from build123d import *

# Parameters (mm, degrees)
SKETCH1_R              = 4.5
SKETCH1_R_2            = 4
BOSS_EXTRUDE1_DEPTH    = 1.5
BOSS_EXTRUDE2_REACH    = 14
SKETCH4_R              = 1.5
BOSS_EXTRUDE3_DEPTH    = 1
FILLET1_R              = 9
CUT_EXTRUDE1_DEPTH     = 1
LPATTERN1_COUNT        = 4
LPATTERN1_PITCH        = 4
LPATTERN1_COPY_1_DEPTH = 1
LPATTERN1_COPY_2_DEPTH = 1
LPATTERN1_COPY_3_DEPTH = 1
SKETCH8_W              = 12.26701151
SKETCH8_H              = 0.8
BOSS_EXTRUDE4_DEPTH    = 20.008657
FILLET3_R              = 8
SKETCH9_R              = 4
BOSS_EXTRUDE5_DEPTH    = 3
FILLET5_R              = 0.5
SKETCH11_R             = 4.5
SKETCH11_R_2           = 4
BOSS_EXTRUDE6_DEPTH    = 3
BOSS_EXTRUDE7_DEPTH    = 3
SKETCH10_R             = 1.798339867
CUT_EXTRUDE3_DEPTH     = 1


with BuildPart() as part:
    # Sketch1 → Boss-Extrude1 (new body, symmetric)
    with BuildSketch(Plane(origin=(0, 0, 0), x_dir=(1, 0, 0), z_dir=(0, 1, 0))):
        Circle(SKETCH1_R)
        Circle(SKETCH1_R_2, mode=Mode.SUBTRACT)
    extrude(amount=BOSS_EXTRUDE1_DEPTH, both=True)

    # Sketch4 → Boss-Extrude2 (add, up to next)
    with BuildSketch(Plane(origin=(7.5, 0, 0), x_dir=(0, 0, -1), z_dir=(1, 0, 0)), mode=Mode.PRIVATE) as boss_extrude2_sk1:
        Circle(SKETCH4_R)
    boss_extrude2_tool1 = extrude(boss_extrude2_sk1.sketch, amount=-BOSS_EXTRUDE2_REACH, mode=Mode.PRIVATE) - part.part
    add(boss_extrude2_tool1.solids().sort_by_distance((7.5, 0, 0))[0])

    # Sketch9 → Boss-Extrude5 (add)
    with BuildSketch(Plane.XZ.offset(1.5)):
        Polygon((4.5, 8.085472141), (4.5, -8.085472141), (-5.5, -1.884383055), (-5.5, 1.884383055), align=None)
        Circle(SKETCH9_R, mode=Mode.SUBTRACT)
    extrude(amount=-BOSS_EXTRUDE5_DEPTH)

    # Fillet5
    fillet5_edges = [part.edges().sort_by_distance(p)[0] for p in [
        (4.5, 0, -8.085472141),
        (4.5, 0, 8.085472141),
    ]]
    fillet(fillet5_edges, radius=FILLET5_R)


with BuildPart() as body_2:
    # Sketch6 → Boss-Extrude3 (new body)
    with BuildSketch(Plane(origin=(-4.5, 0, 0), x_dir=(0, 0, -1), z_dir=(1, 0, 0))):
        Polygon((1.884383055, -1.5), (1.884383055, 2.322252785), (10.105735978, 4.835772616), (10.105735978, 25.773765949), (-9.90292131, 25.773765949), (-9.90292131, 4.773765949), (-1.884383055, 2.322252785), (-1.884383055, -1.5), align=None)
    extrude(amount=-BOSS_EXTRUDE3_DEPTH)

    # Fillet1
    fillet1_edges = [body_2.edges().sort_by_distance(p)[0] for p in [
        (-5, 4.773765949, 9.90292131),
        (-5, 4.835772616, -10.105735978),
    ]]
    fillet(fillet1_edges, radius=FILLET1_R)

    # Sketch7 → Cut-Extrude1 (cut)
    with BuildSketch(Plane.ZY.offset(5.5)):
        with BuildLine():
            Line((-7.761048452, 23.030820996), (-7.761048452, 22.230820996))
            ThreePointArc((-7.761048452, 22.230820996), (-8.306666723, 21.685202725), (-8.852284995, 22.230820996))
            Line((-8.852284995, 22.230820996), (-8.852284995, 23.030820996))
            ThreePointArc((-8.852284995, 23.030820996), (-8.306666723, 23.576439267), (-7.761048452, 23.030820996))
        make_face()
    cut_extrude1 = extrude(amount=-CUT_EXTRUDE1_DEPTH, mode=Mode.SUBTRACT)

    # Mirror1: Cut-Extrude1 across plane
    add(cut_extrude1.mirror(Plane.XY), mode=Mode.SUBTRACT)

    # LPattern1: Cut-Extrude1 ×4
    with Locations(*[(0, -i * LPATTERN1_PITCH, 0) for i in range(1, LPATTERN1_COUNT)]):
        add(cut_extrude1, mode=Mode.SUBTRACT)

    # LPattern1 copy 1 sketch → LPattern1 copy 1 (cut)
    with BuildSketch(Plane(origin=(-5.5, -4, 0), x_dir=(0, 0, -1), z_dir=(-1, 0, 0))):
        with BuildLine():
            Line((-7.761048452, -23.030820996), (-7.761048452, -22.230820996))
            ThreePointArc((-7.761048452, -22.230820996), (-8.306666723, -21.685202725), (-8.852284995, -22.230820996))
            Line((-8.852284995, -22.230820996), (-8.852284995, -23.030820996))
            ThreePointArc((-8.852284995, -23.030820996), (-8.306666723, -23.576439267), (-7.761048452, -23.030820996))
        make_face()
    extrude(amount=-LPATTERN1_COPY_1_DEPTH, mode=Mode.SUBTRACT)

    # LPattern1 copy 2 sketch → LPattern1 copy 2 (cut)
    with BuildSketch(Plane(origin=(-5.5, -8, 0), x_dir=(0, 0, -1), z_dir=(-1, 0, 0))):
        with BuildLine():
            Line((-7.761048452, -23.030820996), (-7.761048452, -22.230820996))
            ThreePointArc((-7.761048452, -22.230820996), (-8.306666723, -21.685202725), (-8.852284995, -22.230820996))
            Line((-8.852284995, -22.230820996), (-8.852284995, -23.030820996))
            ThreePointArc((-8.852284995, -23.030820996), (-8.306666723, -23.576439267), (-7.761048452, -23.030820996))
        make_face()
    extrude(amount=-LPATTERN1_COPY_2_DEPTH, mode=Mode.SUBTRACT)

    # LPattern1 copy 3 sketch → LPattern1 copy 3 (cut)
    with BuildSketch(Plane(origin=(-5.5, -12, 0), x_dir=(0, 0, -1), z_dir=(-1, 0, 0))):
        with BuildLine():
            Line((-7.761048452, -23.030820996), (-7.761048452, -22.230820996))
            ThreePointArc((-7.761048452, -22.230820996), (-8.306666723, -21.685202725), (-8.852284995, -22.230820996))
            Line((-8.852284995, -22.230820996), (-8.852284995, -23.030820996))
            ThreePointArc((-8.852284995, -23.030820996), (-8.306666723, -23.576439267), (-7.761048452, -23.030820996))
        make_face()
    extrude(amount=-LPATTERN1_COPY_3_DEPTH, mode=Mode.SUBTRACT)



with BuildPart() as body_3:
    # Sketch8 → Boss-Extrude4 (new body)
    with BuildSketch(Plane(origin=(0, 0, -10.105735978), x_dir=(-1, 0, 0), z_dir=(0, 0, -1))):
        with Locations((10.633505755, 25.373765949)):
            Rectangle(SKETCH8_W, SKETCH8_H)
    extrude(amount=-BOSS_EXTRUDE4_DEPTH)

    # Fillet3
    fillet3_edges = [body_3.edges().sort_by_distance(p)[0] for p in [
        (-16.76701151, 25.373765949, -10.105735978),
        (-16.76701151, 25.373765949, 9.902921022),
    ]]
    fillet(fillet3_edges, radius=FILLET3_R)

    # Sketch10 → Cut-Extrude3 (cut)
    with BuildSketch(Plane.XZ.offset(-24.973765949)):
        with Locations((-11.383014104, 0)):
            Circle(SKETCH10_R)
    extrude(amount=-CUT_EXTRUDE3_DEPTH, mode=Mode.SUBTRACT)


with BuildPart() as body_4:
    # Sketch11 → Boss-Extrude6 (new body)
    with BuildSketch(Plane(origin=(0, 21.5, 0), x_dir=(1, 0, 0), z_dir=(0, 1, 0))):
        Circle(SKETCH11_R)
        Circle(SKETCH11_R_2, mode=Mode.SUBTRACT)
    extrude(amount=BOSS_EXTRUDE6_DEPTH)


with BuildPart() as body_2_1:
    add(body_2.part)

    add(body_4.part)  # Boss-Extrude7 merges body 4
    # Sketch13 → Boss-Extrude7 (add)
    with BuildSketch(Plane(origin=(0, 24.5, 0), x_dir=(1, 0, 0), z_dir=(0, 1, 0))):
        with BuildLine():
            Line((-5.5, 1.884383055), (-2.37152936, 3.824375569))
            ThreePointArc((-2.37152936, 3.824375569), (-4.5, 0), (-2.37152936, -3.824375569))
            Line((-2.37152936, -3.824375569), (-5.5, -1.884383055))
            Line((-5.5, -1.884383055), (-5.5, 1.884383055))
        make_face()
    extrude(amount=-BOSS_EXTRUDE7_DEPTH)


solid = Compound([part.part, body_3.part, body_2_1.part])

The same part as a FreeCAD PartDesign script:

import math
import FreeCAD as App
import Part
import Sketcher
from FreeCAD import Vector
Q = App.Units.Quantity


def edges_at(feature, points):
    """Names of the edges that pass closest to the given points."""
    edges = feature.Shape.Edges
    near = lambda p: min(range(len(edges)), key=lambda i: edges[i].distToShape(Part.Vertex(*p))[0])
    return sorted({f"Edge{near(p) + 1}" for p in points})

doc = App.newDocument("Part")
body = doc.addObject("PartDesign::Body", "Body")

sketch1 = body.newObject("Sketcher::SketchObject", "Sketch")
sketch1.AttachmentSupport = (doc.getObject("XZ_Plane"), [""])
sketch1.MapMode = "FlatFace"
sketch1.addGeometry([
    Part.Circle(Vector(0, 0, 0), Vector(0, 0, 1), 4.5),
    Part.Circle(Vector(0, 0, 0), Vector(0, 0, 1), 4),
], False)
sketch1.addConstraint([
    Sketcher.Constraint("Coincident", 0, 3, -1, 1),
    Sketcher.Constraint("Coincident", 1, 3, -1, 1),
    Sketcher.Constraint("Diameter", 0, Q("9 mm")),
    Sketcher.Constraint("Diameter", 1, Q("8 mm")),
])
pad1 = body.newObject("PartDesign::Pad", "Pad")
pad1.Profile = sketch1
pad1.Length = 3
pad1.Midplane = True

sketch2 = body.newObject("Sketcher::SketchObject", "Sketch001")
sketch2.AttachmentSupport = (doc.getObject("YZ_Plane"), [""])
sketch2.MapMode = "FlatFace"
sketch2.AttachmentOffset = App.Placement(Vector(0, 0, 7.5), App.Rotation())
sketch2.addGeometry(Part.Circle(Vector(0, 0, 0), Vector(0, 0, 1), 1.5), False)
sketch2.addConstraint([
    Sketcher.Constraint("Coincident", 0, 3, -1, 1),
    Sketcher.Constraint("Diameter", 0, Q("3 mm")),
])
pad2 = body.newObject("PartDesign::Pad", "Pad001")
pad2.Profile = sketch2
pad2.Type = "UpToFirst"
pad2.Reversed = True

sketch3 = body.newObject("Sketcher::SketchObject", "Sketch002")
sketch3.AttachmentSupport = (doc.getObject("XZ_Plane"), [""])
sketch3.MapMode = "FlatFace"
sketch3.AttachmentOffset = App.Placement(Vector(0, 0, 1.5), App.Rotation())
sketch3.addGeometry([
    Part.LineSegment(Vector(4.5, -8.1, 0), Vector(4.5, 8.1, 0)),
    Part.LineSegment(Vector(4.5, 8.1, 0), Vector(-5.5, 1.9, 0)),
    Part.LineSegment(Vector(-5.5, 1.9, 0), Vector(-5.5, -1.9, 0)),
    Part.LineSegment(Vector(-5.5, -1.9, 0), Vector(4.5, -8.1, 0)),
    Part.Circle(Vector(0, 0, 0), Vector(0, 0, 1), 4),
], False)
sketch3.addConstraint([
    Sketcher.Constraint("Coincident", 0, 2, 1, 1),
    Sketcher.Constraint("Coincident", 1, 2, 2, 1),
    Sketcher.Constraint("Coincident", 2, 2, 3, 1),
    Sketcher.Constraint("Coincident", 3, 2, 0, 1),
    Sketcher.Constraint("Vertical", 0),
    Sketcher.Constraint("Vertical", 2),
    Sketcher.Constraint("Coincident", 4, 3, -1, 1),
    Sketcher.Constraint("Equal", 1, 3),
    Sketcher.Constraint("Diameter", 4, Q("8 mm")),
    Sketcher.Constraint("DistanceX", 1, 2, 0, 2, Q("10 mm")),
    Sketcher.Constraint("DistanceX", -1, 1, 0, 2, Q("4.5 mm")),
    Sketcher.Constraint("DistanceY", 0, 1, 0, 2, Q("16.170944 mm")),
    Sketcher.Constraint("DistanceY", 2, 2, 2, 1, Q("3.768766 mm")),
    Sketcher.Constraint("DistanceY", -1, 1, 0, 2, Q("8.085472 mm")),
])
pad3 = body.newObject("PartDesign::Pad", "Pad002")
pad3.Profile = sketch3
pad3.Length = 3
pad3.Reversed = True
doc.recompute()

fillet = body.newObject("PartDesign::Fillet", "Fillet")
fillet.Base = (pad3, edges_at(pad3, [(4.5, 0, -8.085), (4.5, 0, 8.085)]))
fillet.Radius = 0.5
body2 = doc.addObject("PartDesign::Body", "Body001")

sketch4 = body2.newObject("Sketcher::SketchObject", "Sketch003")
sketch4.AttachmentSupport = (doc.getObject("YZ_Plane001"), [""])
sketch4.MapMode = "FlatFace"
sketch4.AttachmentOffset = App.Placement(Vector(0, 0, -4.5), App.Rotation())
sketch4.addGeometry([
    Part.LineSegment(Vector(-1.5, -1.9, 0), Vector(2.3, -1.9, 0)),
    Part.LineSegment(Vector(2.3, -1.9, 0), Vector(4.8, -10.1, 0)),
    Part.LineSegment(Vector(4.8, -10.1, 0), Vector(25.8, -10.1, 0)),
    Part.LineSegment(Vector(25.8, -10.1, 0), Vector(25.8, 9.9, 0)),
    Part.LineSegment(Vector(25.8, 9.9, 0), Vector(4.8, 9.9, 0)),
    Part.LineSegment(Vector(4.8, 9.9, 0), Vector(2.3, 1.9, 0)),
    Part.LineSegment(Vector(2.3, 1.9, 0), Vector(-1.5, 1.9, 0)),
    Part.LineSegment(Vector(-1.5, 1.9, 0), Vector(-1.5, -1.9, 0)),
], False)
sketch4.addConstraint([
    Sketcher.Constraint("Coincident", 0, 2, 1, 1),
    Sketcher.Constraint("Coincident", 1, 2, 2, 1),
    Sketcher.Constraint("Coincident", 2, 2, 3, 1),
    Sketcher.Constraint("Coincident", 3, 2, 4, 1),
    Sketcher.Constraint("Coincident", 4, 2, 5, 1),
    Sketcher.Constraint("Coincident", 5, 2, 6, 1),
    Sketcher.Constraint("Coincident", 6, 2, 7, 1),
    Sketcher.Constraint("Coincident", 7, 2, 0, 1),
    Sketcher.Constraint("Horizontal", 0),
    Sketcher.Constraint("Horizontal", 2),
    Sketcher.Constraint("Vertical", 3),
    Sketcher.Constraint("Horizontal", 4),
    Sketcher.Constraint("Horizontal", 6),
    Sketcher.Constraint("Vertical", 7),
    Sketcher.Constraint("Symmetric", 0, 2, 5, 2, -1),
    Sketcher.Constraint("DistanceX", 4, 2, 4, 1, Q("21 mm")),
    Sketcher.Constraint("Angle", 1, Q("-73 deg")),
    Sketcher.Constraint("Angle", 5, Q("-107 deg")),
    Sketcher.Constraint("DistanceX", 6, 2, -1, 1, Q("1.5 mm")),
    Sketcher.Constraint("Distance", 1, Q("8.597001 mm")),
    Sketcher.Constraint("Distance", 5, Q("8.384919 mm")),
    Sketcher.Constraint("DistanceX", 0, 1, 0, 2, Q("3.822253 mm")),
    Sketcher.Constraint("DistanceY", 3, 1, 3, 2, Q("20.008657 mm")),
])
pad4 = body2.newObject("PartDesign::Pad", "Pad003")
pad4.Profile = sketch4
pad4.Length = 1
pad4.Reversed = True
doc.recompute()

fillet2 = body2.newObject("PartDesign::Fillet", "Fillet001")
fillet2.Base = (pad4, edges_at(pad4, [(-5, 4.774, 9.903), (-5, 4.836, -10.106)]))
fillet2.Radius = 9

sketch5 = body2.newObject("Sketcher::SketchObject", "Sketch004")
sketch5.AttachmentSupport = (doc.getObject("YZ_Plane001"), [""])
sketch5.MapMode = "FlatFace"
sketch5.AttachmentOffset = App.Placement(Vector(0, 0, -5.5), App.Rotation())
sketch5.addGeometry([
    Part.LineSegment(Vector(22.2, -7.8, 0), Vector(23, -7.8, 0)),
    Part.ArcOfCircle(Part.Circle(Vector(23, -8.3, 0), Vector(0, 0, 1), 0.5), math.radians(-90), math.radians(90)),
    Part.LineSegment(Vector(23, -8.9, 0), Vector(22.2, -8.9, 0)),
    Part.ArcOfCircle(Part.Circle(Vector(22.2, -8.3, 0), Vector(0, 0, 1), 0.5), math.radians(90), math.radians(270)),
], False)
sketch5.addConstraint([
    Sketcher.Constraint("Tangent", 0, 2, 1, 2),
    Sketcher.Constraint("Tangent", 1, 1, 2, 1),
    Sketcher.Constraint("Tangent", 2, 2, 3, 2),
    Sketcher.Constraint("Tangent", 3, 1, 0, 1),
    Sketcher.Constraint("Horizontal", 0),
    Sketcher.Constraint("Horizontal", 2),
    Sketcher.Constraint("DistanceX", 0, 1, 0, 2, Q("0.8 mm")),
    Sketcher.Constraint("Radius", 1, Q("0.545618 mm")),
    Sketcher.Constraint("DistanceX", -1, 1, 1, 3, Q("23.030821 mm")),
    Sketcher.Constraint("DistanceY", 0, 2, -1, 1, Q("7.761048 mm")),
])
pocket1 = body2.newObject("PartDesign::Pocket", "Pocket")
pocket1.Profile = sketch5
pocket1.Length = 1
pocket1.Reversed = True
doc.recompute()

mirrored = body2.newObject("PartDesign::Mirrored", "Mirrored")
mirrored.Originals = [pocket1]
mirrored.MirrorPlane = (doc.getObject("XY_Plane001"), [""])
body2.Tip = mirrored
doc.recompute()

linearpattern = body2.newObject("PartDesign::LinearPattern", "LinearPattern")
linearpattern.Originals = [pocket1]
linearpattern.Direction = (doc.getObject("Y_Axis001"), [""])
linearpattern.Mode = "offset"
linearpattern.Offset = 4
linearpattern.Occurrences = 4
linearpattern.Reversed = True
body2.Tip = linearpattern

sketch6 = body2.newObject("Sketcher::SketchObject", "Sketch005")
sketch6.AttachmentSupport = (doc.getObject("YZ_Plane001"), [""])
sketch6.MapMode = "FlatFace"
sketch6.AttachmentOffset = App.Placement(Vector(0, 0, -5.5), App.Rotation())
sketch6.addGeometry([
    Part.LineSegment(Vector(19, 7.8, 0), Vector(18.2, 7.8, 0)),
    Part.ArcOfCircle(Part.Circle(Vector(18.2, 8.3, 0), Vector(0, 0, 1), 0.5), math.radians(90), math.radians(270)),
    Part.LineSegment(Vector(18.2, 8.9, 0), Vector(19, 8.9, 0)),
    Part.ArcOfCircle(Part.Circle(Vector(19, 8.3, 0), Vector(0, 0, 1), 0.5), math.radians(-90), math.radians(90)),
], False)
sketch6.addConstraint([
    Sketcher.Constraint("Tangent", 0, 2, 1, 2),
    Sketcher.Constraint("Tangent", 1, 1, 2, 1),
    Sketcher.Constraint("Tangent", 2, 2, 3, 2),
    Sketcher.Constraint("Tangent", 3, 1, 0, 1),
    Sketcher.Constraint("Horizontal", 0),
    Sketcher.Constraint("Horizontal", 2),
    Sketcher.Constraint("DistanceX", 0, 2, 0, 1, Q("0.8 mm")),
    Sketcher.Constraint("Radius", 1, Q("0.545618 mm")),
    Sketcher.Constraint("DistanceX", -1, 1, 1, 3, Q("18.230821 mm")),
    Sketcher.Constraint("DistanceY", -1, 1, 0, 2, Q("7.761048 mm")),
])
pocket2 = body2.newObject("PartDesign::Pocket", "Pocket001")
pocket2.Profile = sketch6
pocket2.Length = 1
pocket2.Reversed = True

sketch7 = body2.newObject("Sketcher::SketchObject", "Sketch006")
sketch7.AttachmentSupport = (doc.getObject("YZ_Plane001"), [""])
sketch7.MapMode = "FlatFace"
sketch7.AttachmentOffset = App.Placement(Vector(0, 0, -5.5), App.Rotation())
sketch7.addGeometry([
    Part.LineSegment(Vector(15, 7.8, 0), Vector(14.2, 7.8, 0)),
    Part.ArcOfCircle(Part.Circle(Vector(14.2, 8.3, 0), Vector(0, 0, 1), 0.5), math.radians(90), math.radians(270)),
    Part.LineSegment(Vector(14.2, 8.9, 0), Vector(15, 8.9, 0)),
    Part.ArcOfCircle(Part.Circle(Vector(15, 8.3, 0), Vector(0, 0, 1), 0.5), math.radians(-90), math.radians(90)),
], False)
sketch7.addConstraint([
    Sketcher.Constraint("Tangent", 0, 2, 1, 2),
    Sketcher.Constraint("Tangent", 1, 1, 2, 1),
    Sketcher.Constraint("Tangent", 2, 2, 3, 2),
    Sketcher.Constraint("Tangent", 3, 1, 0, 1),
    Sketcher.Constraint("Horizontal", 0),
    Sketcher.Constraint("Horizontal", 2),
    Sketcher.Constraint("DistanceX", 0, 2, 0, 1, Q("0.8 mm")),
    Sketcher.Constraint("Radius", 1, Q("0.545618 mm")),
    Sketcher.Constraint("DistanceX", -1, 1, 1, 3, Q("14.230821 mm")),
    Sketcher.Constraint("DistanceY", -1, 1, 0, 2, Q("7.761048 mm")),
])
pocket3 = body2.newObject("PartDesign::Pocket", "Pocket002")
pocket3.Profile = sketch7
pocket3.Length = 1
pocket3.Reversed = True

sketch8 = body2.newObject("Sketcher::SketchObject", "Sketch007")
sketch8.AttachmentSupport = (doc.getObject("YZ_Plane001"), [""])
sketch8.MapMode = "FlatFace"
sketch8.AttachmentOffset = App.Placement(Vector(0, 0, -5.5), App.Rotation())
sketch8.addGeometry([
    Part.LineSegment(Vector(11, 7.8, 0), Vector(10.2, 7.8, 0)),
    Part.ArcOfCircle(Part.Circle(Vector(10.2, 8.3, 0), Vector(0, 0, 1), 0.5), math.radians(90), math.radians(270)),
    Part.LineSegment(Vector(10.2, 8.9, 0), Vector(11, 8.9, 0)),
    Part.ArcOfCircle(Part.Circle(Vector(11, 8.3, 0), Vector(0, 0, 1), 0.5), math.radians(-90), math.radians(90)),
], False)
sketch8.addConstraint([
    Sketcher.Constraint("Tangent", 0, 2, 1, 2),
    Sketcher.Constraint("Tangent", 1, 1, 2, 1),
    Sketcher.Constraint("Tangent", 2, 2, 3, 2),
    Sketcher.Constraint("Tangent", 3, 1, 0, 1),
    Sketcher.Constraint("Horizontal", 0),
    Sketcher.Constraint("Horizontal", 2),
    Sketcher.Constraint("DistanceX", 0, 2, 0, 1, Q("0.8 mm")),
    Sketcher.Constraint("Radius", 1, Q("0.545618 mm")),
    Sketcher.Constraint("DistanceX", -1, 1, 1, 3, Q("10.230821 mm")),
    Sketcher.Constraint("DistanceY", -1, 1, 0, 2, Q("7.761048 mm")),
])
pocket4 = body2.newObject("PartDesign::Pocket", "Pocket003")
pocket4.Profile = sketch8
pocket4.Length = 1
pocket4.Reversed = True
body3 = doc.addObject("PartDesign::Body", "Body002")

sketch9 = body3.newObject("Sketcher::SketchObject", "Sketch008")
sketch9.AttachmentSupport = (doc.getObject("XY_Plane002"), [""])
sketch9.MapMode = "FlatFace"
sketch9.AttachmentOffset = App.Placement(Vector(0, 0, -10.105736), App.Rotation())
sketch9.addGeometry([
    Part.LineSegment(Vector(-4.5, 25.8, 0), Vector(-4.5, 25, 0)),
    Part.LineSegment(Vector(-4.5, 25, 0), Vector(-16.8, 25, 0)),
    Part.LineSegment(Vector(-16.8, 25, 0), Vector(-16.8, 25.8, 0)),
    Part.LineSegment(Vector(-16.8, 25.8, 0), Vector(-4.5, 25.8, 0)),
], False)
sketch9.addConstraint([
    Sketcher.Constraint("Coincident", 0, 2, 1, 1),
    Sketcher.Constraint("Coincident", 1, 2, 2, 1),
    Sketcher.Constraint("Coincident", 2, 2, 3, 1),
    Sketcher.Constraint("Coincident", 3, 2, 0, 1),
    Sketcher.Constraint("Vertical", 0),
    Sketcher.Constraint("Horizontal", 1),
    Sketcher.Constraint("Vertical", 2),
    Sketcher.Constraint("Horizontal", 3),
    Sketcher.Constraint("DistanceY", 0, 2, 0, 1, Q("0.8 mm")),
    Sketcher.Constraint("DistanceX", 0, 2, -1, 1, Q("4.5 mm")),
    Sketcher.Constraint("DistanceX", 1, 2, 1, 1, Q("12.267012 mm")),
    Sketcher.Constraint("DistanceY", -1, 1, 0, 2, Q("24.973766 mm")),
])
pad5 = body3.newObject("PartDesign::Pad", "Pad004")
pad5.Profile = sketch9
pad5.Length = 20.008657
doc.recompute()

fillet3 = body3.newObject("PartDesign::Fillet", "Fillet002")
fillet3.Base = (pad5, edges_at(pad5, [(-16.767, 25.374, -10.106), (-16.767, 25.374, 9.903)]))
fillet3.Radius = 8

sketch10 = body3.newObject("Sketcher::SketchObject", "Sketch009")
sketch10.AttachmentSupport = (doc.getObject("XZ_Plane002"), [""])
sketch10.MapMode = "FlatFace"
sketch10.AttachmentOffset = App.Placement(Vector(0, 0, -24.973766), App.Rotation())
sketch10.addGeometry(Part.Circle(Vector(-11.4, 0, 0), Vector(0, 0, 1), 1.8), False)
sketch10.addConstraint([
    Sketcher.Constraint("PointOnObject", 0, 3, -1),
    Sketcher.Constraint("Diameter", 0, Q("3.59668 mm")),
    Sketcher.Constraint("DistanceX", 0, 3, -1, 1, Q("11.383014 mm")),
])
pocket5 = body3.newObject("PartDesign::Pocket", "Pocket004")
pocket5.Profile = sketch10
pocket5.Length = 1
body4 = doc.addObject("PartDesign::Body", "Body003")

sketch11 = body4.newObject("Sketcher::SketchObject", "Sketch010")
sketch11.AttachmentSupport = (doc.getObject("XZ_Plane003"), [""])
sketch11.MapMode = "FlatFace"
sketch11.AttachmentOffset = App.Placement(Vector(0, 0, -21.5), App.Rotation())
sketch11.addGeometry([
    Part.Circle(Vector(0, 0, 0), Vector(0, 0, 1), 4.5),
    Part.Circle(Vector(0, 0, 0), Vector(0, 0, 1), 4),
], False)
sketch11.addConstraint([
    Sketcher.Constraint("Coincident", 0, 3, -1, 1),
    Sketcher.Constraint("Coincident", 1, 3, -1, 1),
    Sketcher.Constraint("Diameter", 0, Q("9 mm")),
    Sketcher.Constraint("Diameter", 1, Q("8 mm")),
])
pad6 = body4.newObject("PartDesign::Pad", "Pad005")
pad6.Profile = sketch11
pad6.Length = 3
pad6.Reversed = True
body2.AllowCompound = True
doc.recompute()

boolean = body2.newObject("PartDesign::Boolean", "Boolean")
boolean.Type = "Fuse"
boolean.addObjects([body4])

sketch12 = body2.newObject("Sketcher::SketchObject", "Sketch011")
sketch12.AttachmentSupport = (doc.getObject("XZ_Plane001"), [""])
sketch12.MapMode = "FlatFace"
sketch12.AttachmentOffset = App.Placement(Vector(0, 0, -24.5), App.Rotation())
sketch12.addGeometry([
    Part.LineSegment(Vector(-2.4, -3.8, 0), Vector(-5.5, -1.9, 0)),
    Part.LineSegment(Vector(-5.5, -1.9, 0), Vector(-5.5, 1.9, 0)),
    Part.LineSegment(Vector(-5.5, 1.9, 0), Vector(-2.4, 3.8, 0)),
    Part.ArcOfCircle(Part.Circle(Vector(0, 0, 0), Vector(0, 0, 1), 4.5), math.radians(122), math.radians(238)),
], False)
sketch12.addConstraint([
    Sketcher.Constraint("Coincident", 0, 2, 1, 1),
    Sketcher.Constraint("Coincident", 1, 2, 2, 1),
    Sketcher.Constraint("Tangent", 2, 2, 3, 1),
    Sketcher.Constraint("Tangent", 3, 2, 0, 1),
    Sketcher.Constraint("Vertical", 1),
    Sketcher.Constraint("Coincident", 3, 3, -1, 1),
    Sketcher.Constraint("Vertical", 2, 2, 3, 2),
    Sketcher.Constraint("Radius", 3, Q("4.5 mm")),
    Sketcher.Constraint("DistanceX", 0, 2, -1, 1, Q("5.5 mm")),
    Sketcher.Constraint("DistanceY", 1, 1, 1, 2, Q("3.768766 mm")),
])
pad7 = body2.newObject("PartDesign::Pad", "Pad006")
pad7.Profile = sketch12
pad7.Length = 3

doc.recompute()
